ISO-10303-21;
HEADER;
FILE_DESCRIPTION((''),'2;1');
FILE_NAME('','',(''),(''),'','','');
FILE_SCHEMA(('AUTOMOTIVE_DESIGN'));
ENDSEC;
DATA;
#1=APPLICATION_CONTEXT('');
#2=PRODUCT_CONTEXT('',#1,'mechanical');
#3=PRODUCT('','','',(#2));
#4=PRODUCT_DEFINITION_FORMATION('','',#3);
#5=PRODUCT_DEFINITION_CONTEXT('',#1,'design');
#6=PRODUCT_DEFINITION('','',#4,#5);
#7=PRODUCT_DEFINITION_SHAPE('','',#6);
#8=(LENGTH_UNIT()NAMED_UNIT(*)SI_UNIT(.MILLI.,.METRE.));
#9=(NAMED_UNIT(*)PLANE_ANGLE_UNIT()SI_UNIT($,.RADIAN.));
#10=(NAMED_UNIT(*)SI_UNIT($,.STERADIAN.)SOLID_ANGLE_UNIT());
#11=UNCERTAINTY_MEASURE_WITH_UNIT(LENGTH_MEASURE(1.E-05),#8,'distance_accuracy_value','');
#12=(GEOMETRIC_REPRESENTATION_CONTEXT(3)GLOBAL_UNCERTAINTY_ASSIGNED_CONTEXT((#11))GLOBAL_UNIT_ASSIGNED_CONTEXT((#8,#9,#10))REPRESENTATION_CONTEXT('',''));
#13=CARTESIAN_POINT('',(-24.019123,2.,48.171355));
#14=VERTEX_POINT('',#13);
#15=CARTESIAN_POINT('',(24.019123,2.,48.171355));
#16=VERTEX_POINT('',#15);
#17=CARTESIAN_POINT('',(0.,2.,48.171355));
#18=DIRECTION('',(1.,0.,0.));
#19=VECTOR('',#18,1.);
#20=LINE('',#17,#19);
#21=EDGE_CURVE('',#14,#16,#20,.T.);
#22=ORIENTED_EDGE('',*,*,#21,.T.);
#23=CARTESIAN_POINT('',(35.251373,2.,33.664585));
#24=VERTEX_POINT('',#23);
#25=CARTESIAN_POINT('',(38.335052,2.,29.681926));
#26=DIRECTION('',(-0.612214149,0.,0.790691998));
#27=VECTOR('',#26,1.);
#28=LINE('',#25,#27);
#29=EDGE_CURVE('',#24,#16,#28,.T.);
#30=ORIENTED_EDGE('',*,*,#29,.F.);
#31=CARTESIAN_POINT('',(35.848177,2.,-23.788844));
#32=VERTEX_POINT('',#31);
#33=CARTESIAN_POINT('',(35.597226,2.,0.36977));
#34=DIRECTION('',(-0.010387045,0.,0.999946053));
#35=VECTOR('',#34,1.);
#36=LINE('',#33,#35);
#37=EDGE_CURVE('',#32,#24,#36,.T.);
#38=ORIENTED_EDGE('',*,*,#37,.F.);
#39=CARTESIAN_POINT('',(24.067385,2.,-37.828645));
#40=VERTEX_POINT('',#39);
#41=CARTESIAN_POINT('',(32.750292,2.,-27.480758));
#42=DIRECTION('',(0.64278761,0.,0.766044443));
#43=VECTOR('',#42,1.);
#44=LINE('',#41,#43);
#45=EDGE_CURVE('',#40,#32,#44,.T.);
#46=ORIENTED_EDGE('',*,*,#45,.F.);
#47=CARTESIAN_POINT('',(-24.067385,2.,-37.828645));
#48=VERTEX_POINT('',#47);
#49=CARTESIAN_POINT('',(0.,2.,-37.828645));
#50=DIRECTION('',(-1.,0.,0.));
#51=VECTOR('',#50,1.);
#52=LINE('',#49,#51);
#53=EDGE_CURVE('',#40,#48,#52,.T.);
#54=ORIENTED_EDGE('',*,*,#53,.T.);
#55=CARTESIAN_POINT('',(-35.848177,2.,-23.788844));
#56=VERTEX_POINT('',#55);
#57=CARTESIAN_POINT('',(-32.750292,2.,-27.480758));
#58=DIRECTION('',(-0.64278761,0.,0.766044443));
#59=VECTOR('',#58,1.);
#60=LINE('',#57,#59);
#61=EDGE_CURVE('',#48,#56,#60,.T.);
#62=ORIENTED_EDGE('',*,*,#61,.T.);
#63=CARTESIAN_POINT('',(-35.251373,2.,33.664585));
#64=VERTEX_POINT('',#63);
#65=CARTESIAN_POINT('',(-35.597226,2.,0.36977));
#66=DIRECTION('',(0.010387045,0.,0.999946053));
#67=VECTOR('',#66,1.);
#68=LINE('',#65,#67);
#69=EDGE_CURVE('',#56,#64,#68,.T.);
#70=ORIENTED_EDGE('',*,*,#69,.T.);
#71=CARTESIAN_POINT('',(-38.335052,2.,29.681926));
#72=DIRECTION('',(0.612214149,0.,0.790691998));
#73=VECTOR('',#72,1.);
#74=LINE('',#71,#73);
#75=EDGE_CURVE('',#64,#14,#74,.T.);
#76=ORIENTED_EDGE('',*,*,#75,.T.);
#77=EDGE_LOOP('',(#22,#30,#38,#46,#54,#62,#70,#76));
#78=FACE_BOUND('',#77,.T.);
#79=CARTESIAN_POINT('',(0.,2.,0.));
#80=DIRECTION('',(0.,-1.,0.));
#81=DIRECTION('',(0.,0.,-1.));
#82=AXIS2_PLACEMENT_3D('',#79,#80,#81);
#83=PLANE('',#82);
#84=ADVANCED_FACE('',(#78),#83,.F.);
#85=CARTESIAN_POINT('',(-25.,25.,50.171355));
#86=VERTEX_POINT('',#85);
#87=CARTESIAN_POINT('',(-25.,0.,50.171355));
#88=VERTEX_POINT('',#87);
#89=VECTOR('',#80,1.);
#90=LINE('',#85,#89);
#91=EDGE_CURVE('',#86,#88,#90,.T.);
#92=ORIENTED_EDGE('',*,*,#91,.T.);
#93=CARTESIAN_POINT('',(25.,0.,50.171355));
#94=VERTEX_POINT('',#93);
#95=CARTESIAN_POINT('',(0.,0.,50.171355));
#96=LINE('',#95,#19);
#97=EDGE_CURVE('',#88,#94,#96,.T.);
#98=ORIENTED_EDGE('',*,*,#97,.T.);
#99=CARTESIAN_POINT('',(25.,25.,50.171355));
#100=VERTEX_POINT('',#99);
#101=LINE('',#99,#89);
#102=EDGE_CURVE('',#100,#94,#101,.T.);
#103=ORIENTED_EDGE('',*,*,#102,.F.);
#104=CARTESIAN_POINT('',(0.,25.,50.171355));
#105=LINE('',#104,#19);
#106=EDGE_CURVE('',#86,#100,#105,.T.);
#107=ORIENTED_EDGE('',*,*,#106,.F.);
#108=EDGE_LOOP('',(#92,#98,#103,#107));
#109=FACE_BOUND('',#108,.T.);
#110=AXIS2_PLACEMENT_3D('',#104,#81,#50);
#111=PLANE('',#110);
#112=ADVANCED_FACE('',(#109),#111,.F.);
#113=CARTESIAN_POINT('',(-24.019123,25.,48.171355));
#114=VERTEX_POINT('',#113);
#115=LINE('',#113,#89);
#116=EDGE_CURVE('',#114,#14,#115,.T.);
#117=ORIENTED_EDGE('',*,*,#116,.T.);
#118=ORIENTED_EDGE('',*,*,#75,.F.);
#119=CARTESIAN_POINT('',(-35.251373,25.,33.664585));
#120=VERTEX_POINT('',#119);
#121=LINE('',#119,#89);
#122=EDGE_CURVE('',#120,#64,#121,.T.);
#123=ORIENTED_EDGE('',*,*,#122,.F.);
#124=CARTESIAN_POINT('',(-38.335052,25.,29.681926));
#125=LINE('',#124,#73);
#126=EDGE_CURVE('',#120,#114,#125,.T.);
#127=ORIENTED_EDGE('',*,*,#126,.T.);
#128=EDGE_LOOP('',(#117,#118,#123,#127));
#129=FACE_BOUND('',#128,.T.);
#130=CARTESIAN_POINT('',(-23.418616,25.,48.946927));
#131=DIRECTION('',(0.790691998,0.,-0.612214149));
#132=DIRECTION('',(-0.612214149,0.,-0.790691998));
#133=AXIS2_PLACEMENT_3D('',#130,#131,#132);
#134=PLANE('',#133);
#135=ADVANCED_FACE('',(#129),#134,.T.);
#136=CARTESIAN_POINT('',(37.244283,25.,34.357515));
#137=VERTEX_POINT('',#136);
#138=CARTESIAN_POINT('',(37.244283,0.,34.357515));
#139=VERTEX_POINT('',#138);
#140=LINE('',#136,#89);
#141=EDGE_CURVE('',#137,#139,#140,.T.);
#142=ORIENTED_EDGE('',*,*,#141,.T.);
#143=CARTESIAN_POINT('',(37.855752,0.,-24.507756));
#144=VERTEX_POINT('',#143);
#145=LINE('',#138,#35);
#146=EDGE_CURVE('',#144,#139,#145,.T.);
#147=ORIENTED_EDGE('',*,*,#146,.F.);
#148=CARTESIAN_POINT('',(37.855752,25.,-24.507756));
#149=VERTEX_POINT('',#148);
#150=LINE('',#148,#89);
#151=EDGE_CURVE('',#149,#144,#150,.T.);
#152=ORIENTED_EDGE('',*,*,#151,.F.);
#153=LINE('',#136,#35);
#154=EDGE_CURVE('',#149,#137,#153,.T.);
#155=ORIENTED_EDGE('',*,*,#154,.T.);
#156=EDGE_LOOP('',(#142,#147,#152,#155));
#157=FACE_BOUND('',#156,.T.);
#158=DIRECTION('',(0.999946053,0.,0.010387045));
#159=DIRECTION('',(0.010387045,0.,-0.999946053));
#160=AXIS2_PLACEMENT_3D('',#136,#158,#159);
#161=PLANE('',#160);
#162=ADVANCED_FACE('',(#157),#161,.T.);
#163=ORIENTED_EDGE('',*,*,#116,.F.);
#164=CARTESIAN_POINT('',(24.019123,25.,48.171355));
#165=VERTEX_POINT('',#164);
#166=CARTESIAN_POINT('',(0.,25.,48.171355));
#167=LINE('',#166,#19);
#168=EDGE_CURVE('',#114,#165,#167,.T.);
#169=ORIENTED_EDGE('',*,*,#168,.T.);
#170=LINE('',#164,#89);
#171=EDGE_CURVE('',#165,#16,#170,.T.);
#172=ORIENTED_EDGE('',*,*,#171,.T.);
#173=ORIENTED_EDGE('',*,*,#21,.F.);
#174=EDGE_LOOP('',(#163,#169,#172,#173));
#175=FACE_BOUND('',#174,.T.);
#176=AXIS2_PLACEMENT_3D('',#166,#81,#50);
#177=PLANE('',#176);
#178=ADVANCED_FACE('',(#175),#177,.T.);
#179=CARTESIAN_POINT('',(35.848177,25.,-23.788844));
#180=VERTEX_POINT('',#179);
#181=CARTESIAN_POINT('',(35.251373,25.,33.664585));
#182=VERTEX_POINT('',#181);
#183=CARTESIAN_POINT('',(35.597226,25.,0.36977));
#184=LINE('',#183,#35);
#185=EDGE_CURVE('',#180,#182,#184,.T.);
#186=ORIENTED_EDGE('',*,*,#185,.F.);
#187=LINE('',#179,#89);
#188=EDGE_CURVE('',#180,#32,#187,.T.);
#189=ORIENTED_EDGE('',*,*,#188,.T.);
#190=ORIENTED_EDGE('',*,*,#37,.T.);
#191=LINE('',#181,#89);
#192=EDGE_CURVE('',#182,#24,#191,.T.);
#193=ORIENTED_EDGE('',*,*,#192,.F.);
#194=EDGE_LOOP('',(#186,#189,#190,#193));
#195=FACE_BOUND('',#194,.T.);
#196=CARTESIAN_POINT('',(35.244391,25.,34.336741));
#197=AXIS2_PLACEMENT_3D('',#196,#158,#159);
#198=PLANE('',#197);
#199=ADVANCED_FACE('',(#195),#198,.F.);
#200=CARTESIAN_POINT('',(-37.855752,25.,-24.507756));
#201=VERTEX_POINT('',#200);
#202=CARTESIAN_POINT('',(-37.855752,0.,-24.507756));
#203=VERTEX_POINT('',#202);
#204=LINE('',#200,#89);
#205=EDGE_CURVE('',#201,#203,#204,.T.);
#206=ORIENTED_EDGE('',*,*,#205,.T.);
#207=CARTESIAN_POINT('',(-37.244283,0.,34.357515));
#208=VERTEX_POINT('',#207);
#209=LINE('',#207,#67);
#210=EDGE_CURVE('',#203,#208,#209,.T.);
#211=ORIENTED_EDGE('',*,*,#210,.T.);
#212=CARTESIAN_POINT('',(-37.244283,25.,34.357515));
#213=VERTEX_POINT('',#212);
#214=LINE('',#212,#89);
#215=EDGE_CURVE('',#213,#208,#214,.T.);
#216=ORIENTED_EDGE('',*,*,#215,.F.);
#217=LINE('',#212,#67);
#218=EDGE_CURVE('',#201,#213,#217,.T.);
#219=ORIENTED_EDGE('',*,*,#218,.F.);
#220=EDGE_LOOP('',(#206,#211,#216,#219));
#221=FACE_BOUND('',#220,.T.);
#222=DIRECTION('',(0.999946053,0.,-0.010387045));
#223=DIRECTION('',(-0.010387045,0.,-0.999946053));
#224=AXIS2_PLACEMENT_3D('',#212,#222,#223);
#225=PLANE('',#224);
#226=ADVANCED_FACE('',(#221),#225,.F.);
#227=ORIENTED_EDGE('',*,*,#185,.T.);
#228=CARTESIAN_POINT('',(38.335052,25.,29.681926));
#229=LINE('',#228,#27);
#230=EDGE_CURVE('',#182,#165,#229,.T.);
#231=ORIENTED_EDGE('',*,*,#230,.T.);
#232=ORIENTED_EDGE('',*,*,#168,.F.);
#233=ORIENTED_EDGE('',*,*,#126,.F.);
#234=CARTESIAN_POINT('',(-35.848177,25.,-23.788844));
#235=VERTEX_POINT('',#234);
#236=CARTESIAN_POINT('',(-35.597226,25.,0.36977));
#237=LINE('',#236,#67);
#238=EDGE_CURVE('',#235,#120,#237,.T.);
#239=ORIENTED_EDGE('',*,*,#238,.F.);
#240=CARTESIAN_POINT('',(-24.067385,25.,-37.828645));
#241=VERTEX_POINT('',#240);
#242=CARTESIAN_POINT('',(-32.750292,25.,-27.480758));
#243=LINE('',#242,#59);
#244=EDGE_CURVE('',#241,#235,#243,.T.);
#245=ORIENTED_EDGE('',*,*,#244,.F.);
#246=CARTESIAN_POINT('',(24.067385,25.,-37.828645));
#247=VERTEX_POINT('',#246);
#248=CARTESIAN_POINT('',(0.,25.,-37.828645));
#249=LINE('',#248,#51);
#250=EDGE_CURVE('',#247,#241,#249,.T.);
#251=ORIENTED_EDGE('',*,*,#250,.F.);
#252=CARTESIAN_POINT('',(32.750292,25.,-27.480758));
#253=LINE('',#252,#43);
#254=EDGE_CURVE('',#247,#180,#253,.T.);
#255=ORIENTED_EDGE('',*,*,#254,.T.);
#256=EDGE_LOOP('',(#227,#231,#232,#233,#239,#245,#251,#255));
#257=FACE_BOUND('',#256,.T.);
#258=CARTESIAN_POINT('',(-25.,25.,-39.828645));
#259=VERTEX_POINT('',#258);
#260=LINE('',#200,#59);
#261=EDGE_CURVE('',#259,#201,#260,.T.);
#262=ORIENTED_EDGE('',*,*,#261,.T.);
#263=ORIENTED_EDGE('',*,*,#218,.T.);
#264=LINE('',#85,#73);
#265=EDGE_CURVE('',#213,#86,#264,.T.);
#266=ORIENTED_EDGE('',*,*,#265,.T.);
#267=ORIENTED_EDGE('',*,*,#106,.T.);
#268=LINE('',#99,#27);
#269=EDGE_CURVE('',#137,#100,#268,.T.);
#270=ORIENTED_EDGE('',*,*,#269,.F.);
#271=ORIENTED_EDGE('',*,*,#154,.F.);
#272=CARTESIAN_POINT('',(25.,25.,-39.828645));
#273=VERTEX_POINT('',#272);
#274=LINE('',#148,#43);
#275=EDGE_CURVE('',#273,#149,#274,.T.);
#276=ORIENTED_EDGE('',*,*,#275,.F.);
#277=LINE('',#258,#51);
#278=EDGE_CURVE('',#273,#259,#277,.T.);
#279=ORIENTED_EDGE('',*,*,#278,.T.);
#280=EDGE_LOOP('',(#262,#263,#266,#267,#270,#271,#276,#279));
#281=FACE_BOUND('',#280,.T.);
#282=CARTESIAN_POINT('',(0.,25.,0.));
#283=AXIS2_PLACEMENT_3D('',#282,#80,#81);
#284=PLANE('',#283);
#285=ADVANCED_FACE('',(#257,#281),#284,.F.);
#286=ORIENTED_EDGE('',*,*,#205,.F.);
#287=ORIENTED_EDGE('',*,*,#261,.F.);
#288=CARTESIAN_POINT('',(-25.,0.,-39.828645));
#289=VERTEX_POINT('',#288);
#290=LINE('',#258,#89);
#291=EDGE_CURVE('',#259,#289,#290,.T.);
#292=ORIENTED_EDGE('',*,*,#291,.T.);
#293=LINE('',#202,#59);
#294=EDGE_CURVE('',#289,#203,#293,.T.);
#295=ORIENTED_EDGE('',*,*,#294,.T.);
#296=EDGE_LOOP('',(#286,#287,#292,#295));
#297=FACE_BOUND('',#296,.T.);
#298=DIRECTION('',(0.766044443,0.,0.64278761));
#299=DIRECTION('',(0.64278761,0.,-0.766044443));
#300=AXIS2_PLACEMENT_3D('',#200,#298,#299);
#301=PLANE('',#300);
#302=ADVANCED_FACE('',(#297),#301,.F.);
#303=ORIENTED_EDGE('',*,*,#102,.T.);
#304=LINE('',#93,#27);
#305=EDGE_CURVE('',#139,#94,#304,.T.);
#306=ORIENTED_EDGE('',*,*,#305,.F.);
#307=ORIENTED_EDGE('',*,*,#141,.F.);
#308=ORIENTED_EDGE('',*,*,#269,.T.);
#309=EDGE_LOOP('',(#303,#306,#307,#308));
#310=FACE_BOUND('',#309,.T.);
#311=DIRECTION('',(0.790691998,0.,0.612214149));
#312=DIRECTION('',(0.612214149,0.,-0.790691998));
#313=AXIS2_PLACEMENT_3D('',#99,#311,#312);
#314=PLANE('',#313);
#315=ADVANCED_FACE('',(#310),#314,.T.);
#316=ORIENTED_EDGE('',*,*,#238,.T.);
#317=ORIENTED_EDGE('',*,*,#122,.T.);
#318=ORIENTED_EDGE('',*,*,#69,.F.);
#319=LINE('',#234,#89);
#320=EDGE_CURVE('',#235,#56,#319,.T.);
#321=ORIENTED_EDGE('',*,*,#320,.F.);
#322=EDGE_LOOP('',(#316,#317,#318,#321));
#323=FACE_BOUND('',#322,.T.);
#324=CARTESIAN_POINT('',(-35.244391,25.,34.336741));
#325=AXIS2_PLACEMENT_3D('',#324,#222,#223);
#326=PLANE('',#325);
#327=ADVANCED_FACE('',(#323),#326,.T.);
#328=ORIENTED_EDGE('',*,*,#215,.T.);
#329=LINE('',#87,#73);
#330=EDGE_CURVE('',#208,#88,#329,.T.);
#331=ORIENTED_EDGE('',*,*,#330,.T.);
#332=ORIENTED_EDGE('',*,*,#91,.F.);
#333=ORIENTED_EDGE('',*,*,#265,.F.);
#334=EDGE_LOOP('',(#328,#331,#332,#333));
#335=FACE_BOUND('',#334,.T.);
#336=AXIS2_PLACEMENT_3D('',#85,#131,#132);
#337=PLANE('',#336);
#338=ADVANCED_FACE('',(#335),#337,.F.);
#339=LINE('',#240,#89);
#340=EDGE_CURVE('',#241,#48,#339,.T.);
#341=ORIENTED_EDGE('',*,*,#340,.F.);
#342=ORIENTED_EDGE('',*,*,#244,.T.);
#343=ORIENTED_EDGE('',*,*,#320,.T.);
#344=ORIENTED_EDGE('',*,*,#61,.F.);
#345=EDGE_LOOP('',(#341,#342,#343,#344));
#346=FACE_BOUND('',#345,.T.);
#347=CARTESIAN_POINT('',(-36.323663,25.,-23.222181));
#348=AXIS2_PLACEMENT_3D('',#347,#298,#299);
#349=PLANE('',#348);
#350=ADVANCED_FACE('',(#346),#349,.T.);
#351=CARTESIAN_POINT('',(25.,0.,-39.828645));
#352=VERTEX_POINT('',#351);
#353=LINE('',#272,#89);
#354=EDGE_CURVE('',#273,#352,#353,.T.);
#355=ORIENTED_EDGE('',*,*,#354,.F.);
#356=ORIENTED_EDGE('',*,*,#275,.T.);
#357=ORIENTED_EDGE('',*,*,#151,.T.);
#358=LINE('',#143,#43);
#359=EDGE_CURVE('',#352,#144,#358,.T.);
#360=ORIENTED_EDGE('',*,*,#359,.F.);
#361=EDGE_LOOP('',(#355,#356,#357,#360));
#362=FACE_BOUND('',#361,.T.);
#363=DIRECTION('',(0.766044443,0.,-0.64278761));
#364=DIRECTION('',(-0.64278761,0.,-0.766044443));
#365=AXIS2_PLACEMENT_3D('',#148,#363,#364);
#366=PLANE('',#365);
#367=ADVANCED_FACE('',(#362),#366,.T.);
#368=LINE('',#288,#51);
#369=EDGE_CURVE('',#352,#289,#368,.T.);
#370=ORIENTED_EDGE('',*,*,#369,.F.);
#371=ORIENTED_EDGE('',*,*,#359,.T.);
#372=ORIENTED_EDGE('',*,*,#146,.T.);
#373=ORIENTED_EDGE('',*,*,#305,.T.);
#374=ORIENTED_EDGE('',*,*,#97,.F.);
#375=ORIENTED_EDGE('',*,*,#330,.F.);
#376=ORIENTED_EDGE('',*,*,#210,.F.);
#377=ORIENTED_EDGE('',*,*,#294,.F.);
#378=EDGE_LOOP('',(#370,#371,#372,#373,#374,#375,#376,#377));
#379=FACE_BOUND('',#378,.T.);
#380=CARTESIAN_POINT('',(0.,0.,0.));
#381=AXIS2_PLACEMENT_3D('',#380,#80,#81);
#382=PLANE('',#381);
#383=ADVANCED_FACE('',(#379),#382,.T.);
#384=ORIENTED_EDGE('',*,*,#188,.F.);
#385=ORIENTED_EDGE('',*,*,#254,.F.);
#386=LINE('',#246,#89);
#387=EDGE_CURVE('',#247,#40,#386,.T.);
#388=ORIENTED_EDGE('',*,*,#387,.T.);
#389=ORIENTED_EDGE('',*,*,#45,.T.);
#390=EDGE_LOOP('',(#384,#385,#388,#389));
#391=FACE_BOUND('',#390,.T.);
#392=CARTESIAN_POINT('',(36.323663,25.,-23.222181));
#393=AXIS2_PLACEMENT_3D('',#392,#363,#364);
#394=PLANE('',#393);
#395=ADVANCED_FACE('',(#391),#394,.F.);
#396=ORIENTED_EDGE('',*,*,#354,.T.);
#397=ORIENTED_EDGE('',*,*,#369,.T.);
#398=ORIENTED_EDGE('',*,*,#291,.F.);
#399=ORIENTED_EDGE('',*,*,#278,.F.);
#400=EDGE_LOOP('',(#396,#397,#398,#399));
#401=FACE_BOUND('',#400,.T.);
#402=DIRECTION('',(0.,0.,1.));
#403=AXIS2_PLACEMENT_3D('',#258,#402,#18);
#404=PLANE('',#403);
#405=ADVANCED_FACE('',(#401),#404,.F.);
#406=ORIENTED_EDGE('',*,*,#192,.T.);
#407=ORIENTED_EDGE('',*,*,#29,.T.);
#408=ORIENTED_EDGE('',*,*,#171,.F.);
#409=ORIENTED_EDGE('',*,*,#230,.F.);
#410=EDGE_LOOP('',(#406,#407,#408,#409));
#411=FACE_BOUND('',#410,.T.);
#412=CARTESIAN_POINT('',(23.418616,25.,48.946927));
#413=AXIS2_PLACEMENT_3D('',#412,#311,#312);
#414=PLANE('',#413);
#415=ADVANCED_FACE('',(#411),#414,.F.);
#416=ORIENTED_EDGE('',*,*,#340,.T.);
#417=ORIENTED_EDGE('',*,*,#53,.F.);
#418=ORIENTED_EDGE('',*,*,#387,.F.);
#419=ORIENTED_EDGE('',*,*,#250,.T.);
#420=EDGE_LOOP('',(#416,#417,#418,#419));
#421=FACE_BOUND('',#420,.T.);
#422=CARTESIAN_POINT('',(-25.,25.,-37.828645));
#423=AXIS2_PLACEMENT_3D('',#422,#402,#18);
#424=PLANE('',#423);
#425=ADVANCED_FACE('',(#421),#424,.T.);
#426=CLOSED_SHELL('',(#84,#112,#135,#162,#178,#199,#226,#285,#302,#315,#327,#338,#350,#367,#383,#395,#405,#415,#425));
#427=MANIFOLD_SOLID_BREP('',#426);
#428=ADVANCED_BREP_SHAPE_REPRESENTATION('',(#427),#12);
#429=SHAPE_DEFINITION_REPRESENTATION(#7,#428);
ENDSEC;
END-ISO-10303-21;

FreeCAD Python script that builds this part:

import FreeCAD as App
import Part
import Sketcher

V = App.Vector
Q = App.Units.Quantity


def faces_at(feature, points):
    """Names of the faces that lie closest to the given points."""
    faces = feature.Shape.Faces
    near = lambda p: min(range(len(faces)), key=lambda i: faces[i].distToShape(Part.Vertex(*p))[0])
    return sorted({f"Face{near(p) + 1}" for p in points})

doc = App.newDocument("Part")
body = doc.addObject("PartDesign::Body", "Body")

# Sketch on XZ plane
sketch1 = body.newObject("Sketcher::SketchObject", "Sketch")
sketch1.AttachmentSupport = (doc.getObject("XZ_Plane"), [""])
sketch1.MapMode = "FlatFace"
sketch1.addGeometry([
    Part.LineSegment(V(-25, 50, 0), V(0, 50, 0)),  # 0
    Part.LineSegment(V(0, 50, 0), V(0, -40, 0)),  # 1
    Part.LineSegment(V(0, -40, 0), V(-25, -40, 0)),  # 2
    Part.LineSegment(V(-25, -40, 0), V(-38, -25, 0)),  # 3
    Part.LineSegment(V(-38, -25, 0), V(-37, 34, 0)),  # 4
    Part.LineSegment(V(-37, 34, 0), V(-25, 50, 0)),  # 5
], False)
sketch1.addConstraint([
    Sketcher.Constraint("Coincident", 0, 2, 1, 1),
    Sketcher.Constraint("Coincident", 1, 2, 2, 1),
    Sketcher.Constraint("Coincident", 2, 2, 3, 1),
    Sketcher.Constraint("Coincident", 3, 2, 4, 1),
    Sketcher.Constraint("Coincident", 4, 2, 5, 1),
    Sketcher.Constraint("Coincident", 5, 2, 0, 1),
    Sketcher.Constraint("Horizontal", 0),
    Sketcher.Constraint("Vertical", 1),
    Sketcher.Constraint("Horizontal", 2),
    Sketcher.Constraint("PointOnObject", 0, 2, -2),
    Sketcher.Constraint("Vertical", 2, 2, 5, 2),
    Sketcher.Constraint("Equal", 3, 5),
    Sketcher.Constraint("DistanceX", 0, 1, 0, 2, Q("25 mm")),
    Sketcher.Constraint("DistanceY", 1, 2, 1, 1, Q("90 mm")),
    Sketcher.Constraint("Angle", 3, Q("130 deg")),
    Sketcher.Constraint("Distance", 3, Q("20 mm")),
    Sketcher.Constraint("DistanceY", 4, 2, 0, 2, Q("15.81384 mm")),
    Sketcher.Constraint("DistanceY", -1, 1, 0, 2, Q("50.171355 mm")),
])
pad1 = body.newObject("PartDesign::Pad", "Pad")
pad1.Profile = sketch1
pad1.Length = 25
pad1.Reversed = True
doc.recompute()

mirrored = body.newObject("PartDesign::Mirrored", "Mirrored")
mirrored.Originals = [pad1]
mirrored.MirrorPlane = (doc.getObject("YZ_Plane"), [""])
body.Tip = mirrored
doc.recompute()

thickness = body.newObject("PartDesign::Thickness", "Thickness")
thickness.Base = (mirrored, faces_at(mirrored, [(0, 25, 5.171)]))
thickness.Value = 2
thickness.Reversed = True
thickness.Join = "Intersection"

doc.recompute()
